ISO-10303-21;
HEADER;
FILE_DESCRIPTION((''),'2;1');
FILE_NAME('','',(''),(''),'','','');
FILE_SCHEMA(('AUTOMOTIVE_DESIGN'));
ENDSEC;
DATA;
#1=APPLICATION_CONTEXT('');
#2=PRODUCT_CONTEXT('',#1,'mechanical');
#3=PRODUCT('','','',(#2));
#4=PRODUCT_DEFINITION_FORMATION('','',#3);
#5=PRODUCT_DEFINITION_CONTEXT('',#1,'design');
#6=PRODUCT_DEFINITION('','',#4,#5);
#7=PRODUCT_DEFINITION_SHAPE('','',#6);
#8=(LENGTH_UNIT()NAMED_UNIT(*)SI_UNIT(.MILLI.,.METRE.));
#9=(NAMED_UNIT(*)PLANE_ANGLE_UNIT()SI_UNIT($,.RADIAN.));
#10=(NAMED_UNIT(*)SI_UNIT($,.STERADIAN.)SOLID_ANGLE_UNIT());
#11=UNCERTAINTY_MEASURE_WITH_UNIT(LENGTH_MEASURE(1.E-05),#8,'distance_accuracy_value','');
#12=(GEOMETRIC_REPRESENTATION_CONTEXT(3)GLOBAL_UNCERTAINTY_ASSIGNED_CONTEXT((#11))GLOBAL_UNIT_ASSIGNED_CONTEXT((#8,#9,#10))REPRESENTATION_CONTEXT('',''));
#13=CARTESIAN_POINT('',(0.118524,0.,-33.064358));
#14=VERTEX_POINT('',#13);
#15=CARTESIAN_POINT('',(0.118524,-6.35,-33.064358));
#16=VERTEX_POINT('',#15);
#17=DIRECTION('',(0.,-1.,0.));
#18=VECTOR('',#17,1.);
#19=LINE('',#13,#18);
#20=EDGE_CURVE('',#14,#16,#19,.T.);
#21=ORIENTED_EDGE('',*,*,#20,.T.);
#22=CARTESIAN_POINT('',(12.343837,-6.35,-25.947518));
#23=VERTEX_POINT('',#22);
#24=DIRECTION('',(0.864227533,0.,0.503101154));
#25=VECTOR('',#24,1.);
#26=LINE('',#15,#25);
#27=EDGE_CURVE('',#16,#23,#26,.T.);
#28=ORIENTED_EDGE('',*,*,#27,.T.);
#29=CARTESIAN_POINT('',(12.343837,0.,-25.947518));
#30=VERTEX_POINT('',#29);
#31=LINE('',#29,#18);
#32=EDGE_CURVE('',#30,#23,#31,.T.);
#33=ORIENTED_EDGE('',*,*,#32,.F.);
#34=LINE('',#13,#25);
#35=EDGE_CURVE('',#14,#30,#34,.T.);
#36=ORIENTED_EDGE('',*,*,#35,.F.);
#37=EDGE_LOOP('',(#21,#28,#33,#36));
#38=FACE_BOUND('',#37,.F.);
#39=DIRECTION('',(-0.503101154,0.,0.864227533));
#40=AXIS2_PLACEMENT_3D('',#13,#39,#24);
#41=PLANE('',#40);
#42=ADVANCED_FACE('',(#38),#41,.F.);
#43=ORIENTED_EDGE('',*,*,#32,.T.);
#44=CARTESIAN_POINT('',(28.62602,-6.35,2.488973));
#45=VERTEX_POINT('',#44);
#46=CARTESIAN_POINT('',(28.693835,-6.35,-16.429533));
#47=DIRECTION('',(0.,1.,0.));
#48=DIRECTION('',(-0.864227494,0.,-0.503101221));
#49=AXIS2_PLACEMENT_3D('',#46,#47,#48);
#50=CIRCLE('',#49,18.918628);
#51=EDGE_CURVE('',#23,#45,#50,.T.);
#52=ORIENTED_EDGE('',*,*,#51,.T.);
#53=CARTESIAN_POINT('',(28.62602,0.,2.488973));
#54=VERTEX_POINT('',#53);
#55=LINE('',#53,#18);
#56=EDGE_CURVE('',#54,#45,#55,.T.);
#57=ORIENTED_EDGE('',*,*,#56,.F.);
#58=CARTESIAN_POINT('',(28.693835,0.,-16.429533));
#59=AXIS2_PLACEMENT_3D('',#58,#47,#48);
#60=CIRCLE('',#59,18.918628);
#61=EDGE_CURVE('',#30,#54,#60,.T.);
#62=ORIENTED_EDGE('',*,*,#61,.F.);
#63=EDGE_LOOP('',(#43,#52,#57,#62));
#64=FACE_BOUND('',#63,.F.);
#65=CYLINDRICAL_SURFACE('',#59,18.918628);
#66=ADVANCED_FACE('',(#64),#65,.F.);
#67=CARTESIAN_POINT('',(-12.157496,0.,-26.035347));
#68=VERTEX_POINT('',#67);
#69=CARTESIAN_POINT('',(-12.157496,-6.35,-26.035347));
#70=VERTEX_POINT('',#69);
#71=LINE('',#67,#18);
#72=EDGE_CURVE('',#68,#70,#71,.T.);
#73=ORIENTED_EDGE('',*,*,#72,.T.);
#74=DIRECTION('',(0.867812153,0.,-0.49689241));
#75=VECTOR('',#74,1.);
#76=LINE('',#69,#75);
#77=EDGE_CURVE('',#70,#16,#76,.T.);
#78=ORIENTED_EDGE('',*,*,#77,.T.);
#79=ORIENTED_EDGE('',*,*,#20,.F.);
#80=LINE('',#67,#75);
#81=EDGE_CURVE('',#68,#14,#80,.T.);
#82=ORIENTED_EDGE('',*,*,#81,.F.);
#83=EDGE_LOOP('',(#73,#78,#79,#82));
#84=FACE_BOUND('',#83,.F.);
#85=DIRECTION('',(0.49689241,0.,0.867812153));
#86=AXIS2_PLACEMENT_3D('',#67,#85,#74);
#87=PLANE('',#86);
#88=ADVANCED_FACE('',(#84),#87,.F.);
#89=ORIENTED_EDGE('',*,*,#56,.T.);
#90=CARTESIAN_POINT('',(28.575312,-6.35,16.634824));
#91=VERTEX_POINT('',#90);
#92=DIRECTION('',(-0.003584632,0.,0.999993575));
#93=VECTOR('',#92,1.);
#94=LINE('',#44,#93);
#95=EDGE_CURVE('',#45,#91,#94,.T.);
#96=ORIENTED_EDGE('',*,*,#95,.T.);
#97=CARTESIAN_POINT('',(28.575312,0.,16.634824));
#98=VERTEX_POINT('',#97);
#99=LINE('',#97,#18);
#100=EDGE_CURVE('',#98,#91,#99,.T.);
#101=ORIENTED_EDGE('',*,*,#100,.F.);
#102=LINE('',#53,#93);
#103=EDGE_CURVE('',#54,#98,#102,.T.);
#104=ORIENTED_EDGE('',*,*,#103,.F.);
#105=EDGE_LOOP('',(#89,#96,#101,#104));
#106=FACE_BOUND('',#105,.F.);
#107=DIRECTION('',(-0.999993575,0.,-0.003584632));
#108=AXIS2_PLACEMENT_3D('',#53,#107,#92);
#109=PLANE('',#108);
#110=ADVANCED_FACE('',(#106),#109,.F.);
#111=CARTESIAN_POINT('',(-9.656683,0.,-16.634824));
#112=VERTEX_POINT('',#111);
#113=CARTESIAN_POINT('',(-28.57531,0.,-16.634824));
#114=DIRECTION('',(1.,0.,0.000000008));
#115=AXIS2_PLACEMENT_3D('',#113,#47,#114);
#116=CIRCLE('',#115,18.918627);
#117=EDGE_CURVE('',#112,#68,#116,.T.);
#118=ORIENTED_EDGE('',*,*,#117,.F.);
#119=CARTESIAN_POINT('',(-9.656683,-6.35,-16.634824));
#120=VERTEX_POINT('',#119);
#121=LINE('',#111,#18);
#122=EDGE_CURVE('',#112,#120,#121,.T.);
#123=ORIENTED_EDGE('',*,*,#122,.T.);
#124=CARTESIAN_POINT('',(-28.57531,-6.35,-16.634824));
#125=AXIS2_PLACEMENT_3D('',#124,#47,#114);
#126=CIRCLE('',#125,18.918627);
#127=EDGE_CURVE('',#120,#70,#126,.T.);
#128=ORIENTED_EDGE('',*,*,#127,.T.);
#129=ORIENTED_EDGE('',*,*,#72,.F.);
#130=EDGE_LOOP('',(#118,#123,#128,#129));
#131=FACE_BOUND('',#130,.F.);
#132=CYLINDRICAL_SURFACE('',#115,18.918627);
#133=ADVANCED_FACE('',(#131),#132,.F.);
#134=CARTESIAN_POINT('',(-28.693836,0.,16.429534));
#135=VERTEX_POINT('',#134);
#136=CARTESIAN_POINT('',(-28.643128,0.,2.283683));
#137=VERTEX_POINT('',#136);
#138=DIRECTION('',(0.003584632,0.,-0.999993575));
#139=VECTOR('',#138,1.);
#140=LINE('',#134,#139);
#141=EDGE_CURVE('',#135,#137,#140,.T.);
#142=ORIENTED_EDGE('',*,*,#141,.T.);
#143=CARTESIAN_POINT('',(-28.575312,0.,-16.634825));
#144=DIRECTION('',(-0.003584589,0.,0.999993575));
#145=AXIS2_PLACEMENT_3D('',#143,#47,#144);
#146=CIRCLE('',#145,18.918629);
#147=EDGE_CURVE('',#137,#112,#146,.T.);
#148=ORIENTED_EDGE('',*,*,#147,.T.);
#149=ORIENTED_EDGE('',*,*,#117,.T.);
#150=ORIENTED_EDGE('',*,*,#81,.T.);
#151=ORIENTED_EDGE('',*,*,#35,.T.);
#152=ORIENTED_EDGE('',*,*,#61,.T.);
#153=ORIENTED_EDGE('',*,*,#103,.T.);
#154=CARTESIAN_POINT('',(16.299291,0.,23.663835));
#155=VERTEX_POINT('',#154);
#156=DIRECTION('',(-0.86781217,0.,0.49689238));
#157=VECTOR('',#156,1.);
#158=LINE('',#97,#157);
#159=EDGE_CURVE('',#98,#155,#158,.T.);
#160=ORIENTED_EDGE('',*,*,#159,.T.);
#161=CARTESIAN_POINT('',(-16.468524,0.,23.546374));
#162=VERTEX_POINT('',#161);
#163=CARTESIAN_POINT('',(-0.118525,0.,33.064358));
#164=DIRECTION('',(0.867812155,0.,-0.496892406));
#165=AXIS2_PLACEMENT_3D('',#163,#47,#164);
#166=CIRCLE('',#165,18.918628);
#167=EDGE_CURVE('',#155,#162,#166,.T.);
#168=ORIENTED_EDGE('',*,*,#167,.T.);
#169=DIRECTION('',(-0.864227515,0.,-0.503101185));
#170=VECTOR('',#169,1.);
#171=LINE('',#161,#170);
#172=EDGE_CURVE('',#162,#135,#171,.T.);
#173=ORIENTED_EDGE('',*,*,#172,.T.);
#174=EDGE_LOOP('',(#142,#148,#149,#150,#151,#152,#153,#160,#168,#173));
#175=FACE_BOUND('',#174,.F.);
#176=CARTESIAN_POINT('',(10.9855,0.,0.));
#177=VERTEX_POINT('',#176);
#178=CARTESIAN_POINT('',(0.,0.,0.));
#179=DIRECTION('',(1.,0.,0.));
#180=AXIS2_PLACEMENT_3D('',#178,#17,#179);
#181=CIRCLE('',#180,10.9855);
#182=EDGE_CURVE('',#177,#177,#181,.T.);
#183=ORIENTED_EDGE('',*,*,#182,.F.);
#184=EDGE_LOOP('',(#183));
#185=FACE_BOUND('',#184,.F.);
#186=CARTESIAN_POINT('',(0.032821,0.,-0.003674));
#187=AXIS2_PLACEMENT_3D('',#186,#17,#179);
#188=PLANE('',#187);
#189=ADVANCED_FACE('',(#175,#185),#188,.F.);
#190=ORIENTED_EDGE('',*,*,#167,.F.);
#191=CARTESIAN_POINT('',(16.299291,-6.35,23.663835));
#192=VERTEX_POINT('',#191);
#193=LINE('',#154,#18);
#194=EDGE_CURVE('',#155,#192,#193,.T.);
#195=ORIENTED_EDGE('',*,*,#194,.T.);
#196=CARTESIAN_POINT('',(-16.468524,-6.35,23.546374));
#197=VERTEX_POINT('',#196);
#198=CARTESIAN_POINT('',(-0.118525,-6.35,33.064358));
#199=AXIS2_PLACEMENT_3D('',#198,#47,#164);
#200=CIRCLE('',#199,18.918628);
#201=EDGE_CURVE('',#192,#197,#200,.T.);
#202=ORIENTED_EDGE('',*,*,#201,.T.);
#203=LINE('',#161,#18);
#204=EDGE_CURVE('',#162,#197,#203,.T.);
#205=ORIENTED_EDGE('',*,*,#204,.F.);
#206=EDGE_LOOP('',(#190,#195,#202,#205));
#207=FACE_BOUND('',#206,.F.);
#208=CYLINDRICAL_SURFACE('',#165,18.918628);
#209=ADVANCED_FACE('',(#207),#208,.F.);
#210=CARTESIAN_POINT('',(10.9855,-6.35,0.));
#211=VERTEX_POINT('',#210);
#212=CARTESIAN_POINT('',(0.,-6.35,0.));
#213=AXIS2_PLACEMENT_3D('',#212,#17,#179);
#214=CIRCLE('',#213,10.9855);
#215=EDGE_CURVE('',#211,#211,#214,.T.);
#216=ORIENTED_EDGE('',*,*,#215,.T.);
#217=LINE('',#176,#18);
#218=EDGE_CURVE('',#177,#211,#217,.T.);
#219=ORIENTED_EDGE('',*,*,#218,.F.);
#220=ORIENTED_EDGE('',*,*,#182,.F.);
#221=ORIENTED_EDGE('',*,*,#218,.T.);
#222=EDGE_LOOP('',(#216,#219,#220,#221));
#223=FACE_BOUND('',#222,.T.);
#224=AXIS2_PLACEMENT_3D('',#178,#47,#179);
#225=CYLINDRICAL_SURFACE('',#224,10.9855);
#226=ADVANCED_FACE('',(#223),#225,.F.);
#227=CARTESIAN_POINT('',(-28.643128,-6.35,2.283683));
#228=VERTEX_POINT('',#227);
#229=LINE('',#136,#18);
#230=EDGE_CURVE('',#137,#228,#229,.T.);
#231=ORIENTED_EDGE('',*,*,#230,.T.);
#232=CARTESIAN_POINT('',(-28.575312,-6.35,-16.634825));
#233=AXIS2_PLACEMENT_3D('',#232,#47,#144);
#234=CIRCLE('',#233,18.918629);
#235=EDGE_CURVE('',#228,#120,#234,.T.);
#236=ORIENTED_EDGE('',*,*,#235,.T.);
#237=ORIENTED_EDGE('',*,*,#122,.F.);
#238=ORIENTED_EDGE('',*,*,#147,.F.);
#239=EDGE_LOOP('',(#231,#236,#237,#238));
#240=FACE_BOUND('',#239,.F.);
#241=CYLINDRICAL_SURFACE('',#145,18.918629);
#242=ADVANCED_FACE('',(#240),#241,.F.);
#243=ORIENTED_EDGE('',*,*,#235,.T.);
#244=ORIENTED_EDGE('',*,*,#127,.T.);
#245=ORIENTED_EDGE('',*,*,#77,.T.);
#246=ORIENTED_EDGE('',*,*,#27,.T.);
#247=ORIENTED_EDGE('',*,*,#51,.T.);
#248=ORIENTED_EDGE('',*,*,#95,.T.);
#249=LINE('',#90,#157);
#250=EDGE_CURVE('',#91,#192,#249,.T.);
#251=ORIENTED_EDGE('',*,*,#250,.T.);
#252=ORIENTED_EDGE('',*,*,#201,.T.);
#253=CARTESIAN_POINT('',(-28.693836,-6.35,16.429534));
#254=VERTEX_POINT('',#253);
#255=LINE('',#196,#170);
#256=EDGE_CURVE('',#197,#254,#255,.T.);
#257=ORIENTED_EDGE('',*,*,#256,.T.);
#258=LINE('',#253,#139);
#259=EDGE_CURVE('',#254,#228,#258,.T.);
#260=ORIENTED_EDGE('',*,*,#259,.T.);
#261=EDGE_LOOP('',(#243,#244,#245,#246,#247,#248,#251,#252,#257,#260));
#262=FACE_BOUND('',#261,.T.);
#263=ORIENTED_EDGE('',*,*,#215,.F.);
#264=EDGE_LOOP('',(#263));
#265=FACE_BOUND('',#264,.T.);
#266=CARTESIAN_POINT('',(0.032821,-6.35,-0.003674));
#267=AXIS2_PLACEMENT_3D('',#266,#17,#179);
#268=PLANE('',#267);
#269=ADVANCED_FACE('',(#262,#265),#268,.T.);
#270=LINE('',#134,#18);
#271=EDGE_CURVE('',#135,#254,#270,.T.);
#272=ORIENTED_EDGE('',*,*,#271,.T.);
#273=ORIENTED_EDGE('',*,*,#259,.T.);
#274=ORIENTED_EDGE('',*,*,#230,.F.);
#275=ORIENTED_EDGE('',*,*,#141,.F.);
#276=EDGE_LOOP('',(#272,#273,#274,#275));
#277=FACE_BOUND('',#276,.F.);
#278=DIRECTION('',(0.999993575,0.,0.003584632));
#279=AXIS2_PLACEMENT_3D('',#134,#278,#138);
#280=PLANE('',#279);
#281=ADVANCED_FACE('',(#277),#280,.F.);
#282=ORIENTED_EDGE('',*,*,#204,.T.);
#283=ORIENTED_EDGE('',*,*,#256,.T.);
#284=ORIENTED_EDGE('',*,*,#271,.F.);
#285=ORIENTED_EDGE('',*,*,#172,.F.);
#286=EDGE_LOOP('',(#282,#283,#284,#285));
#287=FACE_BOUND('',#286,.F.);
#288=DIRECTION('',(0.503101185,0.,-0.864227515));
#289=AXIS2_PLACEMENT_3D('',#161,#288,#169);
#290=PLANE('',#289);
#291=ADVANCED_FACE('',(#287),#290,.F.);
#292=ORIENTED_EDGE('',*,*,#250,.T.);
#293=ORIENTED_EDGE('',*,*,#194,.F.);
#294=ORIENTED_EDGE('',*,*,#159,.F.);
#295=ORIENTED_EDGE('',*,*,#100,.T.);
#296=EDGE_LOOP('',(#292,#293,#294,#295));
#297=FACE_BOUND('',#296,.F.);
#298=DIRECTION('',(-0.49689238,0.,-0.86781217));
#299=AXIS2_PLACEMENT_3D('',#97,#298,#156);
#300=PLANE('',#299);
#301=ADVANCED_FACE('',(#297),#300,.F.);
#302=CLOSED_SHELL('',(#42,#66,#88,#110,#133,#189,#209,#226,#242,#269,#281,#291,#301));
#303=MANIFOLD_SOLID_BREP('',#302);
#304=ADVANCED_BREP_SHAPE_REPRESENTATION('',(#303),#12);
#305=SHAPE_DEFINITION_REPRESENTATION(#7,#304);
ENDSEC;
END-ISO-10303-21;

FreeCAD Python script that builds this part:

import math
import FreeCAD as App
import Part
import Sketcher
Q = App.Units.Quantity

doc = App.newDocument("Part")
body = doc.addObject("PartDesign::Body", "Body")

# Sketch on XZ plane
sketch1 = body.newObject("Sketcher::SketchObject", "Sketch")
sketch1.AttachmentSupport = (doc.getObject("XZ_Plane"), [""])
sketch1.MapMode = "FlatFace"
sketch1.addGeometry([
    Part.LineSegment(App.Vector(29, 17, 0), App.Vector(16, 24, 0)),  # 0
    Part.ArcOfCircle(Part.Circle(App.Vector(0, 33, 0), App.Vector(0, 0, 1), 19), math.radians(-150), math.radians(-30)),  # 1
    Part.LineSegment(App.Vector(-16, 24, 0), App.Vector(-29, 16, 0)),  # 2
    Part.LineSegment(App.Vector(-29, 16, 0), App.Vector(-29, 2, 0)),  # 3
    Part.ArcOfCircle(Part.Circle(App.Vector(-29, -17, 0), App.Vector(0, 0, 1), 19), math.radians(0), math.radians(90)),  # 4
    Part.ArcOfCircle(Part.Circle(App.Vector(-29, -17, 0), App.Vector(0, 0, 1), 19), math.radians(-30), math.radians(0)),  # 5
    Part.LineSegment(App.Vector(-12, -26, 0), App.Vector(0, -33, 0)),  # 6
    Part.LineSegment(App.Vector(0, -33, 0), App.Vector(12, -26, 0)),  # 7
    Part.ArcOfCircle(Part.Circle(App.Vector(29, -16, 0), App.Vector(0, 0, 1), 19), math.radians(90), math.radians(210)),  # 8
    Part.LineSegment(App.Vector(29, 2, 0), App.Vector(29, 17, 0)),  # 9
    Part.Circle(App.Vector(0, 0, 0), App.Vector(0, 0, 1), 11),  # 10
], False)
sketch1.addConstraint([
    Sketcher.Constraint("Coincident", 0, 2, 1, 2),
    Sketcher.Constraint("Coincident", 1, 1, 2, 1),
    Sketcher.Constraint("Coincident", 2, 2, 3, 1),
    Sketcher.Constraint("Coincident", 3, 2, 4, 2),
    Sketcher.Constraint("Tangent", 4, 1, 5, 2),
    Sketcher.Constraint("Coincident", 5, 1, 6, 1),
    Sketcher.Constraint("Coincident", 6, 2, 7, 1),
    Sketcher.Constraint("Coincident", 7, 2, 8, 2),
    Sketcher.Constraint("Coincident", 8, 1, 9, 1),
    Sketcher.Constraint("Coincident", 9, 2, 0, 1),
    Sketcher.Constraint("Coincident", 10, 3, -1, 1),
    Sketcher.Constraint("Equal", 1, 4),
    Sketcher.Constraint("Equal", 1, 5),
    Sketcher.Constraint("Equal", 5, 8),
    Sketcher.Constraint("Parallel", 0, 6),
    Sketcher.Constraint("Parallel", 2, 7),
    Sketcher.Constraint("Parallel", 3, 9),
    Sketcher.Constraint("Horizontal", 5, 3, 4, 1),
    Sketcher.Constraint("Equal", 0, 2),
    Sketcher.Constraint("Equal", 2, 3),
    Sketcher.Constraint("Equal", 3, 6),
    Sketcher.Constraint("Equal", 6, 7),
    Sketcher.Constraint("Equal", 7, 9),
    Sketcher.Constraint("Diameter", 10, Q("0.865 in")),
    Sketcher.Constraint("Radius", 1, 18.918628),
    Sketcher.Constraint("DistanceX", 5, 3, 0, 2, 44.874601),
    Sketcher.Constraint("DistanceX", 1, 1, 1, 3, 16.349999),
    Sketcher.Constraint("DistanceY", 5, 3, 1, 1, 40.181198),
    Sketcher.Constraint("DistanceX", 7, 2, 8, 3, 16.349998),
    Sketcher.Constraint("Distance", 2, 14.145942),
    Sketcher.Constraint("DistanceX", 5, 3, -1, 1, 28.57531),
    Sketcher.Constraint("DistanceX", 3, 2, -1, 1, 28.643128),
    Sketcher.Constraint("DistanceX", -1, 1, 8, 1, 28.62602),
    Sketcher.Constraint("DistanceX", -1, 1, 9, 2, 28.575312),
    Sketcher.Constraint("DistanceY", -1, 1, 1, 3, 33.064358),
])
pad1 = body.newObject("PartDesign::Pad", "Pad")
pad1.Profile = sketch1
pad1.Length = Q("0.25 in")

doc.recompute()
